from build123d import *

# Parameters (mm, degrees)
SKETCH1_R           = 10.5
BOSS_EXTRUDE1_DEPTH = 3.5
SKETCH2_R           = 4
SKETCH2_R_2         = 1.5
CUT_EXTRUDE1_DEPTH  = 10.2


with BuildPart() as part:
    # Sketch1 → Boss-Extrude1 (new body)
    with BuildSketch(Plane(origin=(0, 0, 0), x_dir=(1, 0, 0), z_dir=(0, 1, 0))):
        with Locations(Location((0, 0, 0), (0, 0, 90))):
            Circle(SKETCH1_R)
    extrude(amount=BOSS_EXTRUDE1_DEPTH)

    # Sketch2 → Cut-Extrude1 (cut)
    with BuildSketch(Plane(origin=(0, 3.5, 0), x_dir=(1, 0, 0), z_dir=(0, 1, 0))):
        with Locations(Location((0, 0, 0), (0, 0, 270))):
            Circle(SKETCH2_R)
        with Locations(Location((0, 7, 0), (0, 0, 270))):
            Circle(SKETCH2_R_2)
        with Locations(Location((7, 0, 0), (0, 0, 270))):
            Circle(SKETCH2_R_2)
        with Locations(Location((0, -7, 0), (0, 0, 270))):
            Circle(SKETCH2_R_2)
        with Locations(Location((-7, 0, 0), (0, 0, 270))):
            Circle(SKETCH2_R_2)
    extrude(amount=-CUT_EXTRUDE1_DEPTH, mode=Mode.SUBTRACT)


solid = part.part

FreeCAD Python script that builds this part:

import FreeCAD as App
import Part
import Sketcher

V = App.Vector

doc = App.newDocument("Part")
body = doc.addObject("PartDesign::Body", "Body")

sketch1 = body.newObject("Sketcher::SketchObject", "Sketch")
sketch1.AttachmentSupport = (doc.getObject("XZ_Plane"), [""])
sketch1.MapMode = "FlatFace"
sketch1.addGeometry(Part.Circle(V(0, 0, 0), V(0, 0, 1), 10.5), False)
sketch1.addConstraint(Sketcher.Constraint("Coincident", 0, 3, -1, 1))
sketch1.addConstraint(Sketcher.Constraint("Diameter", 0, 21.0))
pad1 = body.newObject("PartDesign::Pad", "Pad")
pad1.Profile = sketch1
pad1.Length = 3.5
pad1.Reversed = True

sketch2 = body.newObject("Sketcher::SketchObject", "Sketch001")
sketch2.AttachmentSupport = (doc.getObject("XZ_Plane"), [""])
sketch2.MapMode = "FlatFace"
sketch2.AttachmentOffset = App.Placement(V(0, 0, -3.5), App.Rotation())
sketch2.addGeometry(Part.Circle(V(0, 0, 0), V(0, 0, 1), 4), False)
sketch2.addGeometry(Part.Circle(V(0, -7, 0), V(0, 0, 1), 1.5), False)
sketch2.addGeometry(Part.Circle(V(7, 0, 0), V(0, 0, 1), 1.5), False)
sketch2.addGeometry(Part.Circle(V(0, 7, 0), V(0, 0, 1), 1.5), False)
sketch2.addGeometry(Part.Circle(V(-7, 0, 0), V(0, 0, 1), 1.5), False)
sketch2.addConstraint(Sketcher.Constraint("Coincident", 0, 3, -1, 1))
sketch2.addConstraint(Sketcher.Constraint("Equal", 1, 2))
sketch2.addConstraint(Sketcher.Constraint("Equal", 2, 3))
sketch2.addConstraint(Sketcher.Constraint("Equal", 3, 4))
sketch2.addConstraint(Sketcher.Constraint("Symmetric", 1, 3, 3, 3, -1, 1))
sketch2.addConstraint(Sketcher.Constraint("Symmetric", 2, 3, 4, 3, -1, 1))
sketch2.addConstraint(Sketcher.Constraint("PointOnObject", 1, 3, -2))
sketch2.addConstraint(Sketcher.Constraint("PointOnObject", 2, 3, -1))
sketch2.addConstraint(Sketcher.Constraint("Diameter", 0, 8.0))
sketch2.addConstraint(Sketcher.Constraint("Diameter", 1, 3.0))
sketch2.addConstraint(Sketcher.Constraint("DistanceY", 1, 3, -1, 1, 7.0))
sketch2.addConstraint(Sketcher.Constraint("DistanceX", -1, 1, 2, 3, 7.0))
pocket1 = body.newObject("PartDesign::Pocket", "Pocket")
pocket1.Profile = sketch2
pocket1.Length = 10.2
pocket1.Reversed = True

doc.recompute()
